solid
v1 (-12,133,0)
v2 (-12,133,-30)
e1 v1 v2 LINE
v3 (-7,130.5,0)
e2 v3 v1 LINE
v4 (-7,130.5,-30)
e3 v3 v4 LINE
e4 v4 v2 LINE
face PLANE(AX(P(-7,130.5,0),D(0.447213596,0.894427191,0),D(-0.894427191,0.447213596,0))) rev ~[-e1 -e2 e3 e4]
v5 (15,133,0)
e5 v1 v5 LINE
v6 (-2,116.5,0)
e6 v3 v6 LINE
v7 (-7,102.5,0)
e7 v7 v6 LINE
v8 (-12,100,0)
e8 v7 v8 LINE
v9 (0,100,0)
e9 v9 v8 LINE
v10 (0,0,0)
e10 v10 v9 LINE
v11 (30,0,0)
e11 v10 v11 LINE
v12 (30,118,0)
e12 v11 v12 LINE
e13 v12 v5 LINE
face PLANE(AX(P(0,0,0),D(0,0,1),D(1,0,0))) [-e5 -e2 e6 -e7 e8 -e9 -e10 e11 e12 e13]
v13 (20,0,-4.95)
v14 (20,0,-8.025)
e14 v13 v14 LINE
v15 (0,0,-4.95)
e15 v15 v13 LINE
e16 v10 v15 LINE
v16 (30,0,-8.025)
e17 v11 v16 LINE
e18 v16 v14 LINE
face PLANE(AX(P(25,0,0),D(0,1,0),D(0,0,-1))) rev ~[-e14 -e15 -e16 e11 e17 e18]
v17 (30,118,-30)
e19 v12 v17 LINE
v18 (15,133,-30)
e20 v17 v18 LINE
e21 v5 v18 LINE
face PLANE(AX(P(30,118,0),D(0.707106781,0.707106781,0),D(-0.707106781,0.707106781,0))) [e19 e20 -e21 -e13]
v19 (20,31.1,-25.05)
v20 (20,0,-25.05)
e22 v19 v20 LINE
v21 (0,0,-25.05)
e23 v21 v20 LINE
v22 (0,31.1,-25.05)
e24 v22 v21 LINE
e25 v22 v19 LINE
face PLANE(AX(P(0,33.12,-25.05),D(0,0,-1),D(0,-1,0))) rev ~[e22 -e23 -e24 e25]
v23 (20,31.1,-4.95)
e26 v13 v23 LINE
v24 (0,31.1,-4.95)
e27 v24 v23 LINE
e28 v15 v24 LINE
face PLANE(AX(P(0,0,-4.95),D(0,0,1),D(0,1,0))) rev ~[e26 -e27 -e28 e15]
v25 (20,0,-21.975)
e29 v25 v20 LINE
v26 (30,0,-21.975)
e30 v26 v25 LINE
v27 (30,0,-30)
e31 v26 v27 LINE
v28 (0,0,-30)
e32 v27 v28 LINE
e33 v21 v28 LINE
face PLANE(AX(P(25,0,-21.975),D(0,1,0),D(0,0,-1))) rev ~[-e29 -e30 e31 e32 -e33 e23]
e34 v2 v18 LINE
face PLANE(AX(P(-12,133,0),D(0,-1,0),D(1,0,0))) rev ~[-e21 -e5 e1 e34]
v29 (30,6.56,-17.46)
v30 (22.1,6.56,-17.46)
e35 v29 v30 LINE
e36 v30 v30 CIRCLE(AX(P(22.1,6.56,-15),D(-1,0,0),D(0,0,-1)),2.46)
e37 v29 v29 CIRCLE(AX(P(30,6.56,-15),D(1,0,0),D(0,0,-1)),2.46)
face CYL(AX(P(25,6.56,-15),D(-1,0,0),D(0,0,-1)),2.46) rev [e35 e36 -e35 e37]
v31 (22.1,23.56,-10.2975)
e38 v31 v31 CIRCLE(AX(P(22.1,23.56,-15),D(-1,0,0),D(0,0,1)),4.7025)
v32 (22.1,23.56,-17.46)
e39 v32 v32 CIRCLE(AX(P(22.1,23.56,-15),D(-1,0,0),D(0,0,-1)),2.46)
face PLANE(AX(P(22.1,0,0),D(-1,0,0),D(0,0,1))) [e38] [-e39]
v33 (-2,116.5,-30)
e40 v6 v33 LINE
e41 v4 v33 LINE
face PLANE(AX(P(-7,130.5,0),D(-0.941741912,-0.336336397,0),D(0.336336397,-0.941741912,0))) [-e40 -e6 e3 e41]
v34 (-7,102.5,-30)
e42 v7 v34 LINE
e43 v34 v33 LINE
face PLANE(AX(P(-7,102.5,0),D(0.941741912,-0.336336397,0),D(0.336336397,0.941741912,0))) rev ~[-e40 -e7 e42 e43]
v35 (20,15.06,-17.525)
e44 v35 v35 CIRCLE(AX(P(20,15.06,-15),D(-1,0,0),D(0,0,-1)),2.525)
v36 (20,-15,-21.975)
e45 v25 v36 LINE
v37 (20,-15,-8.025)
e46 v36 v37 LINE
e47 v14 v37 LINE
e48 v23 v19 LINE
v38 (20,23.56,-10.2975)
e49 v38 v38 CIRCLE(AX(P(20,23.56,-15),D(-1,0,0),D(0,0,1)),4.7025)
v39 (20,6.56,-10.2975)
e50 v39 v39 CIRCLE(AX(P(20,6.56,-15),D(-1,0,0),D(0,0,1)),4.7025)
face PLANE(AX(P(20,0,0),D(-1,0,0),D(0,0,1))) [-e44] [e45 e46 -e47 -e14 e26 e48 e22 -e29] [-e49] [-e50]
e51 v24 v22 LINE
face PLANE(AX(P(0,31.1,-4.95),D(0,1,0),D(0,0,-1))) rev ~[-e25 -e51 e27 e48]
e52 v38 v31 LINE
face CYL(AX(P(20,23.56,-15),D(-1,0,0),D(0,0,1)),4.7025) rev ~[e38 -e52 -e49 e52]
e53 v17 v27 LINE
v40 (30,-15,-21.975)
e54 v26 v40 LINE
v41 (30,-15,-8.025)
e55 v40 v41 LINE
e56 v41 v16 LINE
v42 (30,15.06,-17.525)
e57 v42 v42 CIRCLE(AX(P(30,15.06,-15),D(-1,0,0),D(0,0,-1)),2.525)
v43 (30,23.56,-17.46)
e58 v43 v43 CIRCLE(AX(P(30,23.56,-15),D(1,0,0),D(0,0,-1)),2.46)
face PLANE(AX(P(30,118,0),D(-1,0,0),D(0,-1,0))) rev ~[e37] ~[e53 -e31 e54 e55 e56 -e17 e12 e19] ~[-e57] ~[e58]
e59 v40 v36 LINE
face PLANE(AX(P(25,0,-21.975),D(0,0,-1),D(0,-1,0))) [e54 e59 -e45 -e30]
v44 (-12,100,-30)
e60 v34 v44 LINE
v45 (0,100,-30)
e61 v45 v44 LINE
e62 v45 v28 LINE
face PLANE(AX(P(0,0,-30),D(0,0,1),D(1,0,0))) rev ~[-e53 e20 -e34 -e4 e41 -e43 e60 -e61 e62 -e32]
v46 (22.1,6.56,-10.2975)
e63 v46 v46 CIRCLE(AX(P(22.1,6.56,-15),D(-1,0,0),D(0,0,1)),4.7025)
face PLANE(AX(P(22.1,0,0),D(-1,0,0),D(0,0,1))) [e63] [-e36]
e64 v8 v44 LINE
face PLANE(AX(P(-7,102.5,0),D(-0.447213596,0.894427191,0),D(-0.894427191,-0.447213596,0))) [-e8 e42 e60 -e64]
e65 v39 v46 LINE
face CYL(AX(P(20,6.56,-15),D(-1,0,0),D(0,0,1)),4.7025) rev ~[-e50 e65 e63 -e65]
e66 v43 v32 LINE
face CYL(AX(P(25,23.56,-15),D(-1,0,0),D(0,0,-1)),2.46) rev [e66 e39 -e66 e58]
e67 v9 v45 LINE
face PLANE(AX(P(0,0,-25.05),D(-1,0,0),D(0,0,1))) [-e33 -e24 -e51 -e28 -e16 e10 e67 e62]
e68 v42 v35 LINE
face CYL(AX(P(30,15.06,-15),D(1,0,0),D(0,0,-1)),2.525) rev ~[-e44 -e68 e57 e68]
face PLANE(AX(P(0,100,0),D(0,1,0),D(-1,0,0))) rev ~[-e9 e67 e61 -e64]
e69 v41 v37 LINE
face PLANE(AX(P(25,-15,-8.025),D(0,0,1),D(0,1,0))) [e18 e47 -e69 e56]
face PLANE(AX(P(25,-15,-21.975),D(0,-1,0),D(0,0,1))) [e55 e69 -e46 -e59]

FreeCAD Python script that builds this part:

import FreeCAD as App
import Part
import Sketcher
from FreeCAD import Vector
Q = App.Units.Quantity


def add_polygon(sketch, points):
    """Adds a closed chain of lines whose ends are joined by coincident constraints."""
    first, n = sketch.GeometryCount, len(points)
    for a, b in zip(points, points[1:] + points[:1]):
        sketch.addGeometry(Part.LineSegment(App.Vector(*a, 0), App.Vector(*b, 0)), False)
    for i in range(n):
        sketch.addConstraint(Sketcher.Constraint("Coincident", first + i, 2, first + (i + 1) % n, 1))

doc = App.newDocument("Part")
params = doc.addObject("Spreadsheet::Sheet", "Params")
for row, (alias, value) in enumerate([
    ("sketch1_width", "25 mm"),
    ("sketch1_height", "40 mm"),
    ("pad1_length", "30 mm"),
    ("sketch2_diameter", "4.92 mm"),
    ("pocket1_length", "30 mm"),
    ("sketch3_height", "20.1 mm"),
    ("sketch3_width", "33.12 mm"),
    ("pocket2_length", "20 mm"),
    ("sketch4_height", "13.95 mm"),
    ("sketch4_width", "5 mm"),
    ("pad2_length", "15 mm"),
    ("sketch5_diameter", "4.92 mm"),
    ("pocket3_length", "2.1 mm"),
    ("sketch6_diameter", "4.92 mm"),
    ("pocket4_length", "10 mm"),
    ("sketch7_diameter", "4.92 mm"),
    ("pocket5_length", "2.1 mm"),
    ("sketch8_diameter", "4.92 mm"),
    ("sketch8_width", "40 mm"),
    ("sketch8_width2", "15 mm"),
    ("sketch8_height", "30 mm"),
    ("sketch8_height2", "13.95 mm"),
    ("pad3_length", "5 mm"),
    ("sketch9_width", "30 mm"),
    ("pad4_length", "30 mm"),
    ("sketch10_diameter", "5.05 mm"),
    ("pocket6_length", "30 mm"),
    ("sketch11_width", "12 mm"),
    ("sketch11_width2", "30 mm"),
    ("sketch11_width3", "27 mm"),
    ("sketch11_height", "48 mm"),
    ("pad5_length", "30 mm"),
    ("sketch12_width", "2.02 mm"),
    ("sketch12_height", "20.1 mm"),
    ("pad6_length", "20 mm"),
], start=1):
    params.set(f"A{row}", alias)
    params.set(f"B{row}", "=" + value)
    params.setAlias(f"B{row}", alias)

body = doc.addObject("PartDesign::Body", "Body")

sketch1 = doc.addObject("Sketcher::SketchObject", "Sketch")
body.addObject(sketch1)
sketch1.AttachmentSupport = (doc.XY_Plane, [""])
sketch1.MapMode = "FlatFace"
add_polygon(sketch1, [(0, 40), (0, 0), (25, 0), (25, 40)])
sketch1.addConstraint(Sketcher.Constraint("Vertical", 0))
sketch1.addConstraint(Sketcher.Constraint("Horizontal", 1))
sketch1.addConstraint(Sketcher.Constraint("Vertical", 2))
sketch1.addConstraint(Sketcher.Constraint("Horizontal", 3))
sketch1.addConstraint(Sketcher.Constraint("Coincident", 0, 2, -1, 1))
sketch1.addConstraint(Sketcher.Constraint("DistanceX", 1, 1, 1, 2, Q("25 mm")))
sketch1.addConstraint(Sketcher.Constraint("DistanceY", 0, 2, 0, 1, Q("40 mm")))
sketch1.setExpression("Constraints[9]", "Params.sketch1_width")
sketch1.setExpression("Constraints[10]", "Params.sketch1_height")
pad1 = doc.addObject("PartDesign::Pad", "Pad")
body.addObject(pad1)
pad1.Profile = sketch1
pad1.setExpression("Length", "Params.pad1_length")
pad1.Reversed = True

sketch2 = doc.addObject("Sketcher::SketchObject", "Sketch001")
body.addObject(sketch2)
sketch2.AttachmentSupport = (doc.YZ_Plane, [""])
sketch2.MapMode = "FlatFace"
sketch2.AttachmentOffset = App.Placement(Vector(0, 0, 25), App.Rotation())
sketch2.addGeometry(Part.Circle(Vector(6.56, -15, 0), Vector(0, 0, 1), 2.46), False)
sketch2.addConstraint(Sketcher.Constraint("Diameter", 0, Q("4.92 mm")))
sketch2.addConstraint(Sketcher.Constraint("DistanceY", 0, 3, -1, 1, Q("15 mm")))
sketch2.addConstraint(Sketcher.Constraint("DistanceX", -1, 1, 0, 3, Q("6.56 mm")))
sketch2.setExpression("Constraints[0]", "Params.sketch2_diameter")
pocket1 = doc.addObject("PartDesign::Pocket", "Pocket")
body.addObject(pocket1)
pocket1.Profile = sketch2
pocket1.setExpression("Length", "Params.pocket1_length")

sketch3 = doc.addObject("Sketcher::SketchObject", "Sketch002")
body.addObject(sketch3)
sketch3.AttachmentSupport = (doc.YZ_Plane, [""])
sketch3.MapMode = "FlatFace"
add_polygon(sketch3, [(0, -25.05), (0, -4.95), (33.12, -4.95), (33.12, -25.05)])
sketch3.addConstraint(Sketcher.Constraint("Vertical", 0))
sketch3.addConstraint(Sketcher.Constraint("Horizontal", 1))
sketch3.addConstraint(Sketcher.Constraint("Vertical", 2))
sketch3.addConstraint(Sketcher.Constraint("Horizontal", 3))
sketch3.addConstraint(Sketcher.Constraint("PointOnObject", 0, 2, -2))
sketch3.addConstraint(Sketcher.Constraint("DistanceY", 0, 1, 0, 2, Q("20.1 mm")))
sketch3.addConstraint(Sketcher.Constraint("DistanceX", 1, 1, 1, 2, Q("33.12 mm")))
sketch3.addConstraint(Sketcher.Constraint("DistanceY", 0, 2, -1, 1, Q("4.95 mm")))
sketch3.setExpression("Constraints[9]", "Params.sketch3_height")
sketch3.setExpression("Constraints[10]", "Params.sketch3_width")
pocket2 = doc.addObject("PartDesign::Pocket", "Pocket001")
body.addObject(pocket2)
pocket2.Profile = sketch3
pocket2.setExpression("Length", "Params.pocket2_length")
pocket2.Reversed = True

sketch4 = doc.addObject("Sketcher::SketchObject", "Sketch003")
body.addObject(sketch4)
sketch4.AttachmentSupport = (doc.XZ_Plane, [""])
sketch4.MapMode = "FlatFace"
add_polygon(sketch4, [(25, -8.025), (20, -8.025), (20, -21.975), (25, -21.975)])
sketch4.addConstraint(Sketcher.Constraint("Horizontal", 0))
sketch4.addConstraint(Sketcher.Constraint("Vertical", 1))
sketch4.addConstraint(Sketcher.Constraint("Horizontal", 2))
sketch4.addConstraint(Sketcher.Constraint("Vertical", 3))
sketch4.addConstraint(Sketcher.Constraint("DistanceY", 1, 2, 1, 1, Q("13.95 mm")))
sketch4.addConstraint(Sketcher.Constraint("DistanceX", 0, 2, 0, 1, Q("5 mm")))
sketch4.addConstraint(Sketcher.Constraint("DistanceX", -1, 1, 0, 2, Q("20 mm")))
sketch4.addConstraint(Sketcher.Constraint("DistanceY", 0, 2, -1, 1, Q("8.025 mm")))
sketch4.setExpression("Constraints[8]", "Params.sketch4_height")
sketch4.setExpression("Constraints[9]", "Params.sketch4_width")
pad2 = doc.addObject("PartDesign::Pad", "Pad001")
body.addObject(pad2)
pad2.Profile = sketch4
pad2.setExpression("Length", "Params.pad2_length")

sketch5 = doc.addObject("Sketcher::SketchObject", "Sketch004")
body.addObject(sketch5)
sketch5.AttachmentSupport = (doc.YZ_Plane, [""])
sketch5.MapMode = "FlatFace"
sketch5.AttachmentOffset = App.Placement(Vector(0, 0, 20), App.Rotation())
sketch5.addGeometry(Part.Circle(Vector(6.56, -15, 0), Vector(0, 0, 1), 4.7025), False)
sketch5.addGeometry(Part.Circle(Vector(6.56, -15, 0), Vector(0, 0, 1), 2.46), False)
sketch5.addConstraint(Sketcher.Constraint("Coincident", 1, 3, 0, 3))
sketch5.addConstraint(Sketcher.Constraint("Diameter", 0, Q("9.405 mm")))
sketch5.addConstraint(Sketcher.Constraint("Diameter", 1, Q("4.92 mm")))
sketch5.addConstraint(Sketcher.Constraint("DistanceY", 0, 3, -1, 1, Q("15 mm")))
sketch5.addConstraint(Sketcher.Constraint("DistanceX", -1, 1, 0, 3, Q("6.56 mm")))
sketch5.setExpression("Constraints[2]", "Params.sketch5_diameter")
pocket3 = doc.addObject("PartDesign::Pocket", "Pocket002")
body.addObject(pocket3)
pocket3.Profile = sketch5
pocket3.setExpression("Length", "Params.pocket3_length")
pocket3.Reversed = True

sketch6 = doc.addObject("Sketcher::SketchObject", "Sketch005")
body.addObject(sketch6)
sketch6.AttachmentSupport = (doc.YZ_Plane, [""])
sketch6.MapMode = "FlatFace"
sketch6.AttachmentOffset = App.Placement(Vector(0, 0, 25), App.Rotation())
sketch6.addGeometry(Part.Circle(Vector(23.56, -15, 0), Vector(0, 0, 1), 2.46), False)
sketch6.addConstraint(Sketcher.Constraint("Diameter", 0, Q("4.92 mm")))
sketch6.addConstraint(Sketcher.Constraint("DistanceY", 0, 3, -1, 1, Q("15 mm")))
sketch6.addConstraint(Sketcher.Constraint("DistanceX", -1, 1, 0, 3, Q("23.56 mm")))
sketch6.setExpression("Constraints[0]", "Params.sketch6_diameter")
pocket4 = doc.addObject("PartDesign::Pocket", "Pocket003")
body.addObject(pocket4)
pocket4.Profile = sketch6
pocket4.setExpression("Length", "Params.pocket4_length")

sketch7 = doc.addObject("Sketcher::SketchObject", "Sketch006")
body.addObject(sketch7)
sketch7.AttachmentSupport = (doc.YZ_Plane, [""])
sketch7.MapMode = "FlatFace"
sketch7.AttachmentOffset = App.Placement(Vector(0, 0, 20), App.Rotation())
sketch7.addGeometry(Part.Circle(Vector(23.56, -15, 0), Vector(0, 0, 1), 4.7025), False)
sketch7.addGeometry(Part.Circle(Vector(23.56, -15, 0), Vector(0, 0, 1), 2.46), False)
sketch7.addConstraint(Sketcher.Constraint("Coincident", 1, 3, 0, 3))
sketch7.addConstraint(Sketcher.Constraint("Diameter", 0, Q("9.405 mm")))
sketch7.addConstraint(Sketcher.Constraint("Diameter", 1, Q("4.92 mm")))
sketch7.addConstraint(Sketcher.Constraint("DistanceY", 0, 3, -1, 1, Q("15 mm")))
sketch7.addConstraint(Sketcher.Constraint("DistanceX", -1, 1, 0, 3, Q("23.56 mm")))
sketch7.setExpression("Constraints[2]", "Params.sketch7_diameter")
pocket5 = doc.addObject("PartDesign::Pocket", "Pocket004")
body.addObject(pocket5)
pocket5.Profile = sketch7
pocket5.setExpression("Length", "Params.pocket5_length")
pocket5.Reversed = True

sketch8 = doc.addObject("Sketcher::SketchObject", "Sketch007")
body.addObject(sketch8)
sketch8.AttachmentSupport = (doc.YZ_Plane, [""])
sketch8.MapMode = "FlatFace"
sketch8.AttachmentOffset = App.Placement(Vector(0, 0, 25), App.Rotation())
add_polygon(sketch8, [(0, -30), (40, -30), (40, 0), (0, 0), (0, -8.025), (-15, -8.025), (-15, -21.975), (0, -21.975)])
sketch8.addGeometry(Part.Circle(Vector(6.56, -15, 0), Vector(0, 0, 1), 2.46), False)
sketch8.addGeometry(Part.Circle(Vector(23.56, -15, 0), Vector(0, 0, 1), 2.46), False)
sketch8.addConstraint(Sketcher.Constraint("Horizontal", 0))
sketch8.addConstraint(Sketcher.Constraint("Vertical", 1))
sketch8.addConstraint(Sketcher.Constraint("Horizontal", 2))
sketch8.addConstraint(Sketcher.Constraint("Vertical", 3))
sketch8.addConstraint(Sketcher.Constraint("Horizontal", 4))
sketch8.addConstraint(Sketcher.Constraint("Vertical", 5))
sketch8.addConstraint(Sketcher.Constraint("Horizontal", 6))
sketch8.addConstraint(Sketcher.Constraint("Vertical", 7))
sketch8.addConstraint(Sketcher.Constraint("Coincident", 2, 2, -1, 1))
sketch8.addConstraint(Sketcher.Constraint("Equal", 8, 9))
sketch8.addConstraint(Sketcher.Constraint("PointOnObject", 6, 2, -2))
sketch8.addConstraint(Sketcher.Constraint("Horizontal", 8, 3, 9, 3))
sketch8.addConstraint(Sketcher.Constraint("Equal", 3, 7))
sketch8.addConstraint(Sketcher.Constraint("Diameter", 8, Q("4.92 mm")))
sketch8.addConstraint(Sketcher.Constraint("DistanceX", 0, 1, 0, 2, Q("40 mm")))
sketch8.addConstraint(Sketcher.Constraint("DistanceX", 4, 2, 4, 1, Q("15 mm")))
sketch8.addConstraint(Sketcher.Constraint("DistanceY", 1, 1, 1, 2, Q("30 mm")))
sketch8.addConstraint(Sketcher.Constraint("DistanceY", 8, 3, -1, 1, Q("15 mm")))
sketch8.addConstraint(Sketcher.Constraint("DistanceX", 8, 3, 9, 3, Q("17 mm")))
sketch8.addConstraint(Sketcher.Constraint("DistanceY", 5, 2, 5, 1, Q("13.95 mm")))
sketch8.addConstraint(Sketcher.Constraint("DistanceX", -1, 1, 8, 3, Q("6.56 mm")))
sketch8.setExpression("Constraints[21]", "Params.sketch8_diameter")
sketch8.setExpression("Constraints[22]", "Params.sketch8_width")
sketch8.setExpression("Constraints[23]", "Params.sketch8_width2")
sketch8.setExpression("Constraints[24]", "Params.sketch8_height")
sketch8.setExpression("Constraints[27]", "Params.sketch8_height2")
pad3 = doc.addObject("PartDesign::Pad", "Pad002")
body.addObject(pad3)
pad3.Profile = sketch8
pad3.setExpression("Length", "Params.pad3_length")

sketch9 = doc.addObject("Sketcher::SketchObject", "Sketch008")
body.addObject(sketch9)
sketch9.AttachmentSupport = (doc.XZ_Plane, [""])
sketch9.MapMode = "FlatFace"
sketch9.AttachmentOffset = App.Placement(Vector(0, 0, -40), App.Rotation())
add_polygon(sketch9, [(30, -30), (0, -30), (0, 0), (30, 0)])
sketch9.addConstraint(Sketcher.Constraint("Horizontal", 0))
sketch9.addConstraint(Sketcher.Constraint("Vertical", 1))
sketch9.addConstraint(Sketcher.Constraint("Horizontal", 2))
sketch9.addConstraint(Sketcher.Constraint("Vertical", 3))
sketch9.addConstraint(Sketcher.Constraint("Coincident", 1, 2, -1, 1))
sketch9.addConstraint(Sketcher.Constraint("Equal", 2, 1))
sketch9.addConstraint(Sketcher.Constraint("DistanceX", 0, 2, 0, 1, Q("30 mm")))
sketch9.setExpression("Constraints[10]", "Params.sketch9_width")
pad4 = doc.addObject("PartDesign::Pad", "Pad003")
body.addObject(pad4)
pad4.Profile = sketch9
pad4.setExpression("Length", "Params.pad4_length")
pad4.Reversed = True

sketch10 = doc.addObject("Sketcher::SketchObject", "Sketch009")
body.addObject(sketch10)
sketch10.AttachmentSupport = (doc.YZ_Plane, [""])
sketch10.MapMode = "FlatFace"
sketch10.AttachmentOffset = App.Placement(Vector(0, 0, 30), App.Rotation())
sketch10.addGeometry(Part.Circle(Vector(15.06, -15, 0), Vector(0, 0, 1), 2.525), False)
sketch10.addConstraint(Sketcher.Constraint("Diameter", 0, Q("5.05 mm")))
sketch10.addConstraint(Sketcher.Constraint("DistanceY", 0, 3, -1, 1, Q("15 mm")))
sketch10.addConstraint(Sketcher.Constraint("DistanceX", -1, 1, 0, 3, Q("15.06 mm")))
sketch10.setExpression("Constraints[0]", "Params.sketch10_diameter")
pocket6 = doc.addObject("PartDesign::Pocket", "Pocket005")
body.addObject(pocket6)
pocket6.Profile = sketch10
pocket6.setExpression("Length", "Params.pocket6_length")

sketch11 = doc.addObject("Sketcher::SketchObject", "Sketch010")
body.addObject(sketch11)
sketch11.AttachmentSupport = (doc.XY_Plane, [""])
sketch11.MapMode = "FlatFace"
add_polygon(sketch11, [(0, 70), (30, 70), (30, 118), (15, 133), (-12, 133), (-7, 130.5), (-2, 116.5), (-7, 102.5), (-12, 100), (0, 100)])
sketch11.addConstraint(Sketcher.Constraint("Horizontal", 0))
sketch11.addConstraint(Sketcher.Constraint("Vertical", 1))
sketch11.addConstraint(Sketcher.Constraint("Horizontal", 3))
sketch11.addConstraint(Sketcher.Constraint("Horizontal", 8))
sketch11.addConstraint(Sketcher.Constraint("Vertical", 9))
sketch11.addConstraint(Sketcher.Constraint("PointOnObject", 8, 2, -2))
sketch11.addConstraint(Sketcher.Constraint("Vertical", 4, 2, 6, 2))
sketch11.addConstraint(Sketcher.Constraint("Vertical", 3, 2, 7, 2))
sketch11.addConstraint(Sketcher.Constraint("Equal", 0, 9))
sketch11.addConstraint(Sketcher.Constraint("Equal", 5, 6))
sketch11.addConstraint(Sketcher.Constraint("Equal", 4, 7))
sketch11.addConstraint(Sketcher.Constraint("DistanceX", 8, 1, 8, 2, Q("12 mm")))
sketch11.addConstraint(Sketcher.Constraint("DistanceX", 0, 1, 0, 2, Q("30 mm")))
sketch11.addConstraint(Sketcher.Constraint("DistanceX", 3, 2, 3, 1, Q("27 mm")))
sketch11.addConstraint(Sketcher.Constraint("DistanceY", 1, 1, 1, 2, Q("48 mm")))
sketch11.addConstraint(Sketcher.Constraint("Angle", 2, Q("135 deg")))
sketch11.addConstraint(Sketcher.Constraint("DistanceY", -1, 1, 0, 2, Q("70 mm")))
sketch11.addConstraint(Sketcher.Constraint("DistanceX", 4, 2, -1, 1, Q("7 mm")))
sketch11.addConstraint(Sketcher.Constraint("DistanceX", 5, 2, -1, 1, Q("2 mm")))
sketch11.addConstraint(Sketcher.Constraint("DistanceY", 5, 2, 4, 2, Q("14 mm")))
sketch11.setExpression("Constraints[21]", "Params.sketch11_width")
sketch11.setExpression("Constraints[22]", "Params.sketch11_width2")
sketch11.setExpression("Constraints[23]", "Params.sketch11_width3")
sketch11.setExpression("Constraints[24]", "Params.sketch11_height")
pad5 = doc.addObject("PartDesign::Pad", "Pad004")
body.addObject(pad5)
pad5.Profile = sketch11
pad5.setExpression("Length", "Params.pad5_length")
pad5.Reversed = True

sketch12 = doc.addObject("Sketcher::SketchObject", "Sketch011")
body.addObject(sketch12)
sketch12.AttachmentSupport = (doc.YZ_Plane, [""])
sketch12.MapMode = "FlatFace"
add_polygon(sketch12, [(33.12, -4.95), (33.12, -25.05), (31.1, -25.05), (31.1, -4.95)])
sketch12.addConstraint(Sketcher.Constraint("Vertical", 0))
sketch12.addConstraint(Sketcher.Constraint("Horizontal", 1))
sketch12.addConstraint(Sketcher.Constraint("Vertical", 2))
sketch12.addConstraint(Sketcher.Constraint("Horizontal", 3))
sketch12.addConstraint(Sketcher.Constraint("DistanceX", 1, 2, 1, 1, Q("2.02 mm")))
sketch12.addConstraint(Sketcher.Constraint("DistanceY", 0, 2, 0, 1, Q("20.1 mm")))
sketch12.addConstraint(Sketcher.Constraint("DistanceX", -1, 1, 1, 2, Q("31.1 mm")))
sketch12.addConstraint(Sketcher.Constraint("DistanceY", 0, 2, -1, 1, Q("25.05 mm")))
sketch12.setExpression("Constraints[8]", "Params.sketch12_width")
sketch12.setExpression("Constraints[9]", "Params.sketch12_height")
pad6 = doc.addObject("PartDesign::Pad", "Pad005")
body.addObject(pad6)
pad6.Profile = sketch12
pad6.setExpression("Length", "Params.pad6_length")

doc.recompute()
